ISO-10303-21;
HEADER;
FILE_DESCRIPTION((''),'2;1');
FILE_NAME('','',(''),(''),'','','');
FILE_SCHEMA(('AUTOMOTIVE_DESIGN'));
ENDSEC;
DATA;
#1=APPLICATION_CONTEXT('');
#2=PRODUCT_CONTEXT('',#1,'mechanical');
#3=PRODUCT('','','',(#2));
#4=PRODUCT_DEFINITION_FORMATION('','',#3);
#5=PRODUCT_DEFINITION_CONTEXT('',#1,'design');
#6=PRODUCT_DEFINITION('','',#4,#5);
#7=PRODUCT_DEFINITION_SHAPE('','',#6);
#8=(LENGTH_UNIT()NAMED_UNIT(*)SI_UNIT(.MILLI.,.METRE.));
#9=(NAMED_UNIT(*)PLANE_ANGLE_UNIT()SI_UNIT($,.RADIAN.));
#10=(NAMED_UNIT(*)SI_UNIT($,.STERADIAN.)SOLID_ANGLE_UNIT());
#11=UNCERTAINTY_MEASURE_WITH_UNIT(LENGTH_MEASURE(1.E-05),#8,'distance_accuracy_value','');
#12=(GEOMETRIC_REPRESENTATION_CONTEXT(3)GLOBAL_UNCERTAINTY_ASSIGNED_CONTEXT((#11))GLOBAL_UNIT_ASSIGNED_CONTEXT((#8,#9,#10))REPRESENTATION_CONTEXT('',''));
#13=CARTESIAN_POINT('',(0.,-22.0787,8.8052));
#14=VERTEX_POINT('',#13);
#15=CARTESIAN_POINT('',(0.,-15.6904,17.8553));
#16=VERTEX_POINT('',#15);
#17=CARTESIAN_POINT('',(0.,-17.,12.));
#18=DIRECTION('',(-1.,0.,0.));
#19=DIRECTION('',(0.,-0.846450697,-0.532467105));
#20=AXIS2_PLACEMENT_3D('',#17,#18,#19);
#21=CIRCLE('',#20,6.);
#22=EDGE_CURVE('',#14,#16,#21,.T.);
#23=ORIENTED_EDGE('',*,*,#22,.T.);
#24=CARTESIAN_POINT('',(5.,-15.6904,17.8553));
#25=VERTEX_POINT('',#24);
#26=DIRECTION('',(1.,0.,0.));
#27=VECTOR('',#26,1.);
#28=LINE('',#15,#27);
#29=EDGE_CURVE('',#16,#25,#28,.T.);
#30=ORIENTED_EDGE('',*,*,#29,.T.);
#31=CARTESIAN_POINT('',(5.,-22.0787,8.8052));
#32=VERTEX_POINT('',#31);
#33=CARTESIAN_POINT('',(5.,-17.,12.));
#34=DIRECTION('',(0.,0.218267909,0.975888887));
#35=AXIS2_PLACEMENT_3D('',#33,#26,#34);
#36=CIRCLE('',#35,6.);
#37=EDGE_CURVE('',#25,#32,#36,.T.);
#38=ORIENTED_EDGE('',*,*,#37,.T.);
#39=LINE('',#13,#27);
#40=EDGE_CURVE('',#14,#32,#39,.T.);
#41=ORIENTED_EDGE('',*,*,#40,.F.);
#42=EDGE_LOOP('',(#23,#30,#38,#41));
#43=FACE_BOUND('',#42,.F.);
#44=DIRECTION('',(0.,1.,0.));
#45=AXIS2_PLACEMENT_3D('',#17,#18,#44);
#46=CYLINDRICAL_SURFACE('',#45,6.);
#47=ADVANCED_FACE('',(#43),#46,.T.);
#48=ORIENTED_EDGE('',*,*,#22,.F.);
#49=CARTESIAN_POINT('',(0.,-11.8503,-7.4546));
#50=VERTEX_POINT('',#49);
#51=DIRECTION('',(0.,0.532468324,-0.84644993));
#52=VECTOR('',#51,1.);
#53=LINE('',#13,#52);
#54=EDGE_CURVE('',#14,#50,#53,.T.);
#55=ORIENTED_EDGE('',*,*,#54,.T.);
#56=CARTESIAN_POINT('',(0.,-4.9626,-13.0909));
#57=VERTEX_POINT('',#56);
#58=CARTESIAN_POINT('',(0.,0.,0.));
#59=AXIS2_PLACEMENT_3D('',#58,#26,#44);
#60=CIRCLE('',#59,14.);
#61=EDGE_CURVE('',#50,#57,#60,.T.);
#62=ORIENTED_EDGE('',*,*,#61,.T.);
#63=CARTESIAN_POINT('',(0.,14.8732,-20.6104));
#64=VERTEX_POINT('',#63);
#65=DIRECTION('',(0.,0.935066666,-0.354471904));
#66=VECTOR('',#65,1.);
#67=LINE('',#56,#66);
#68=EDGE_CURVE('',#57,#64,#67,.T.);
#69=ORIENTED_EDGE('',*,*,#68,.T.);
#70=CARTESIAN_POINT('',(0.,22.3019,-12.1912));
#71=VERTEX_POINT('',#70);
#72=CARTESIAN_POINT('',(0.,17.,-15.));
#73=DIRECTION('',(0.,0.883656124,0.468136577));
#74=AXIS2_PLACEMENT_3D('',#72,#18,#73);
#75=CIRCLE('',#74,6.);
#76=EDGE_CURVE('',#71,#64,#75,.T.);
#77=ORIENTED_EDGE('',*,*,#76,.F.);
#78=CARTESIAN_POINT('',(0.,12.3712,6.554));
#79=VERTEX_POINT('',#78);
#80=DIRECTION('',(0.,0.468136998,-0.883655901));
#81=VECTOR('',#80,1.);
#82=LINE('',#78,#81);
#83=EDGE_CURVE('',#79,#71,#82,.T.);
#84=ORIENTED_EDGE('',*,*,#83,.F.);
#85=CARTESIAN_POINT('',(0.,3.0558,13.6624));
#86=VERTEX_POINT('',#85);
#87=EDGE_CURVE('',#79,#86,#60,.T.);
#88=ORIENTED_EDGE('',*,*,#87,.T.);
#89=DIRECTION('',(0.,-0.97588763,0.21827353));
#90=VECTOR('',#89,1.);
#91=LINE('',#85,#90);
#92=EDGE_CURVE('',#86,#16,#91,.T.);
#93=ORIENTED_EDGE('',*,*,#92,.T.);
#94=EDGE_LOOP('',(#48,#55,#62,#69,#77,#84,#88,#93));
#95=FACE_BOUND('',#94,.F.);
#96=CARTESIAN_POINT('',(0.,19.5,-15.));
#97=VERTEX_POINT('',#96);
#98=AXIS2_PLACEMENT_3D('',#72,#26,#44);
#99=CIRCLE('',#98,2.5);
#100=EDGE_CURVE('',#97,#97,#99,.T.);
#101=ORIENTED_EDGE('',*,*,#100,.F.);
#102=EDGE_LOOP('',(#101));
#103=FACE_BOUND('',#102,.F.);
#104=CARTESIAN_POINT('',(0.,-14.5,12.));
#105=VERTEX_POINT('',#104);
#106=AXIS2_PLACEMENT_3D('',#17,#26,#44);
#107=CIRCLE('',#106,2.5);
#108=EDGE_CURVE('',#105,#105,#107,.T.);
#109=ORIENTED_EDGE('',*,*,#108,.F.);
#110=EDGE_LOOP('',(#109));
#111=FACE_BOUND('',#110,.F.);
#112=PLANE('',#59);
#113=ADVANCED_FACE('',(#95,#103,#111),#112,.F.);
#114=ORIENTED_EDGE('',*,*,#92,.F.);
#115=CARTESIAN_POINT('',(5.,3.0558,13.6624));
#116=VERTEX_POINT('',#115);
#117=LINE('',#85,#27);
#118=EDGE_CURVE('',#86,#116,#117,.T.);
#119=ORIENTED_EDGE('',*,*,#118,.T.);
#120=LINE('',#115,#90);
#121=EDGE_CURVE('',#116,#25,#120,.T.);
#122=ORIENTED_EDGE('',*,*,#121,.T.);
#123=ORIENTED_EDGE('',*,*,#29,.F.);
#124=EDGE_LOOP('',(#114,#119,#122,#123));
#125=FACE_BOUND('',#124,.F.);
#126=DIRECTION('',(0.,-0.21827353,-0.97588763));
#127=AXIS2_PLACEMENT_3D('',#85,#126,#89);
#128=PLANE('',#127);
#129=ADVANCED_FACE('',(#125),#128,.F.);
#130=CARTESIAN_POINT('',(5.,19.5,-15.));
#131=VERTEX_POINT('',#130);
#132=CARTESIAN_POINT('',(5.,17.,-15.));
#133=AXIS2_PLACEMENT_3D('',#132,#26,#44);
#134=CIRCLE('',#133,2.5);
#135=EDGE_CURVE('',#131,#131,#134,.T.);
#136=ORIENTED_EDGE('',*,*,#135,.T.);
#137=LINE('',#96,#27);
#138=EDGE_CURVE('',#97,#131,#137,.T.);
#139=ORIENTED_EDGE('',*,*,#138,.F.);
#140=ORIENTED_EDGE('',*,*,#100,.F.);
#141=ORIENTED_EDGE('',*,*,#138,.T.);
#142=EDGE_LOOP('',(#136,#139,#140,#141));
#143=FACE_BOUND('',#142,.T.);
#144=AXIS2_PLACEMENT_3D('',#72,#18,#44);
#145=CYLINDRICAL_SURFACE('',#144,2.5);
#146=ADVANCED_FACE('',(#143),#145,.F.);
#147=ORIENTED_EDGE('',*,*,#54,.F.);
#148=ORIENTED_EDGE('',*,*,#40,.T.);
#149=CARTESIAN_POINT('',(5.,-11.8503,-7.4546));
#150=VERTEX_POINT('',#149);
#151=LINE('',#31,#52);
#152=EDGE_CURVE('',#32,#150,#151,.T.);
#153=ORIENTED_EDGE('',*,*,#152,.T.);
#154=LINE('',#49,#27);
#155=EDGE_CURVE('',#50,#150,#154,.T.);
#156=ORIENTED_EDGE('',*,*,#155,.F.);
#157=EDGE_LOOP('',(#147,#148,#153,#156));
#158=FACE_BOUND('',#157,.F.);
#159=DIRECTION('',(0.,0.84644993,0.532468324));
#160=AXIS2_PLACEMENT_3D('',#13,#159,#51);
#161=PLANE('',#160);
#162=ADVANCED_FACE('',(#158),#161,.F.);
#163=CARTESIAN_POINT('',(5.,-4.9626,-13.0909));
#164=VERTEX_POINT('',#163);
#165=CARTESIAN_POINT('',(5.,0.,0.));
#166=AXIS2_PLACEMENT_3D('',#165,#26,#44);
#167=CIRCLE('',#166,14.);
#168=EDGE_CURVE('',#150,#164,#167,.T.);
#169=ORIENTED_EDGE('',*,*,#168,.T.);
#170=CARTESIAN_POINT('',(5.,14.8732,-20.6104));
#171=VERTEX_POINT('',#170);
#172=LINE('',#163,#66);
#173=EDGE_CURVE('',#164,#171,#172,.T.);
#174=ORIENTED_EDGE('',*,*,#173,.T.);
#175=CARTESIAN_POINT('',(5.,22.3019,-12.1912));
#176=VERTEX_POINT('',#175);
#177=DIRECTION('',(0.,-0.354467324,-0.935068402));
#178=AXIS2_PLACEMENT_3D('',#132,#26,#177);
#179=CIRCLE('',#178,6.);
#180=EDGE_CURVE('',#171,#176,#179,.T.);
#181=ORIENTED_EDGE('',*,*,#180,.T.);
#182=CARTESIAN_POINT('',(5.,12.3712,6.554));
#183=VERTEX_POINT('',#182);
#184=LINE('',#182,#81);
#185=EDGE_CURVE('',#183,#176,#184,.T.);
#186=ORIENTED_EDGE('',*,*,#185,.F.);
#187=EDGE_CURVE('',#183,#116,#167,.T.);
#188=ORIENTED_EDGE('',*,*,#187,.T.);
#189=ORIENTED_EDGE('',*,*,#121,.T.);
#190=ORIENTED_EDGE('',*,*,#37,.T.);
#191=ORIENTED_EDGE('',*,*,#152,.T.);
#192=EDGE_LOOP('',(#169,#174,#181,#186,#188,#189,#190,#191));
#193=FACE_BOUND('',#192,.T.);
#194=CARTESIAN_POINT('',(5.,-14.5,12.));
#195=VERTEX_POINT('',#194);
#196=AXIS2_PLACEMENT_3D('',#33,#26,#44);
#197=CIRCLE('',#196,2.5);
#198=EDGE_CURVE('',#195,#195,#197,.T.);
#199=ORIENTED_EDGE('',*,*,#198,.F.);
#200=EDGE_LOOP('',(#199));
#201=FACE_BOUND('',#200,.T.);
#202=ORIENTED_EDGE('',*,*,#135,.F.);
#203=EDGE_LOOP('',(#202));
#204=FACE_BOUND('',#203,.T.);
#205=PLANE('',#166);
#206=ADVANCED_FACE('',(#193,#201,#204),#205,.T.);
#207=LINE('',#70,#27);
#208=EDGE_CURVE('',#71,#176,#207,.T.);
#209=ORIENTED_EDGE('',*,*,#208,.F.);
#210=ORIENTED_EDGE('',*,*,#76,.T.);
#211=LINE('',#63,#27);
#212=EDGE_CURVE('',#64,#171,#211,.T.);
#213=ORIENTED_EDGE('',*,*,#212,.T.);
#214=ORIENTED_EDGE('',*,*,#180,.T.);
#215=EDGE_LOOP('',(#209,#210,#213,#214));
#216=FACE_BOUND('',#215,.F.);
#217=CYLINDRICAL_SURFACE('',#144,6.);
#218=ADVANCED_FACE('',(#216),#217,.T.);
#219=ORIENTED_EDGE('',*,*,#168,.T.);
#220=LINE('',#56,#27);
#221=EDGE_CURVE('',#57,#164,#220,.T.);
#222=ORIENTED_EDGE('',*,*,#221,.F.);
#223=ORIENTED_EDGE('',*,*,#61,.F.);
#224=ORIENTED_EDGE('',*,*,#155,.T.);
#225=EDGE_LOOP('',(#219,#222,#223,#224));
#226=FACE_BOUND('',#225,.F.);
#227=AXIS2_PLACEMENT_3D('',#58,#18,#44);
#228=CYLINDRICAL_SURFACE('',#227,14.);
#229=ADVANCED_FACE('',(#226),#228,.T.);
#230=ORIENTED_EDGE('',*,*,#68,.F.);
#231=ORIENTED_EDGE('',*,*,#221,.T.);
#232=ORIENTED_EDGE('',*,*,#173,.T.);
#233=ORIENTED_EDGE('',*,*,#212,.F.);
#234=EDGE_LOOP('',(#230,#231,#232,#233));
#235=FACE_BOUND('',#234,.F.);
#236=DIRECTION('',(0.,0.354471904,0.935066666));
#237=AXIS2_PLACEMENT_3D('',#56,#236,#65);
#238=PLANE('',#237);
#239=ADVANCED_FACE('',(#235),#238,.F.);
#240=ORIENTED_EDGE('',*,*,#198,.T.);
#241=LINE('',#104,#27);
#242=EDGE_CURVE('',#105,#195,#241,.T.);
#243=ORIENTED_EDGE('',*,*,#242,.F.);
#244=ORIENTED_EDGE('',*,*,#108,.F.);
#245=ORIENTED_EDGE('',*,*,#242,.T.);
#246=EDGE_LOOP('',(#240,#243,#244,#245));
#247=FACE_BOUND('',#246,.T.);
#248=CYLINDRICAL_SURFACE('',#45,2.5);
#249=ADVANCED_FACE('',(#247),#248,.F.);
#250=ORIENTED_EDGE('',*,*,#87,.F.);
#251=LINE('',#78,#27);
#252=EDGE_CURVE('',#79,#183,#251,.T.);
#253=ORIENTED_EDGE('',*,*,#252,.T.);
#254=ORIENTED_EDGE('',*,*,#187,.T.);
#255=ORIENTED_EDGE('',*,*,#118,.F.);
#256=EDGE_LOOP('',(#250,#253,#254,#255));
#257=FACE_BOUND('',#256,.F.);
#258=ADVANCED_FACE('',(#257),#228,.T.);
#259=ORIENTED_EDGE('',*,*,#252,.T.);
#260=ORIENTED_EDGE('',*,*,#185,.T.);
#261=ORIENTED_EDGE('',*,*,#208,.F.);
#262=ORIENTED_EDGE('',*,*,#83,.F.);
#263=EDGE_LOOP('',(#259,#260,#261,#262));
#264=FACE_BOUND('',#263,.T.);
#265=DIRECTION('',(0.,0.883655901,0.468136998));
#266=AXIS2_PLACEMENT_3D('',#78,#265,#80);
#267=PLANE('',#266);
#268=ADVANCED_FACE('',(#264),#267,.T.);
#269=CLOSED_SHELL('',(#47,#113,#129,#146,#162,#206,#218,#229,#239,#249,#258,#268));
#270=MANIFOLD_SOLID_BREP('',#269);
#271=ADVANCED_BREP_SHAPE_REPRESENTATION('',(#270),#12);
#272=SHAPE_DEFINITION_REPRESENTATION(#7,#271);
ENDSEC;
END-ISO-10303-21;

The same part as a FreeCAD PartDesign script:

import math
import FreeCAD as App
import Part
import Sketcher

V = App.Vector
Q = App.Units.Quantity

doc = App.newDocument("Part")
params = doc.addObject("Spreadsheet::Sheet", "Params")
for row, (alias, value) in enumerate([
    ("sketch1_diameter", "5 mm"),
    ("sketch1_radius", "14 mm"),
    ("sketch1_radius2", "6 mm"),
    ("pad1_length", "5 mm"),
], start=1):
    params.set(f"A{row}", alias)
    params.set(f"B{row}", "=" + value)
    params.setAlias(f"B{row}", alias)

body = doc.addObject("PartDesign::Body", "Body")

sketch1 = body.newObject("Sketcher::SketchObject", "Sketch")
sketch1.AttachmentSupport = (doc.getObject("YZ_Plane"), [""])
sketch1.MapMode = "FlatFace"
sketch1.addGeometry(Part.ArcOfCircle(Part.Circle(V(0, 0, 0), V(0, 0, 1), 14), math.radians(-148), math.radians(-111)), False)
sketch1.addGeometry(Part.LineSegment(V(-5, -13.1, 0), V(14.9, -20.6, 0)), False)
sketch1.addGeometry(Part.ArcOfCircle(Part.Circle(V(17, -15, 0), V(0, 0, 1), 6), math.radians(-111), math.radians(28)), False)
sketch1.addGeometry(Part.LineSegment(V(22.3, -12.2, 0), V(12.4, 6.6, 0)), False)
sketch1.addGeometry(Part.ArcOfCircle(Part.Circle(V(0, 0, 0), V(0, 0, 1), 14), math.radians(28), math.radians(77)), False)
sketch1.addGeometry(Part.LineSegment(V(3.1, 13.7, 0), V(-15.7, 17.9, 0)), False)
sketch1.addGeometry(Part.ArcOfCircle(Part.Circle(V(-17, 12, 0), V(0, 0, 1), 6), math.radians(77), math.radians(212)), False)
sketch1.addGeometry(Part.LineSegment(V(-22.1, 8.8, 0), V(-11.9, -7.5, 0)), False)
sketch1.addGeometry(Part.Circle(V(17, -15, 0), V(0, 0, 1), 2.5), False)
sketch1.addGeometry(Part.Circle(V(-17, 12, 0), V(0, 0, 1), 2.5), False)
sketch1.addConstraint(Sketcher.Constraint("Tangent", 0, 2, 1, 1))
sketch1.addConstraint(Sketcher.Constraint("Tangent", 1, 2, 2, 1))
sketch1.addConstraint(Sketcher.Constraint("Tangent", 2, 2, 3, 1))
sketch1.addConstraint(Sketcher.Constraint("Tangent", 3, 2, 4, 1))
sketch1.addConstraint(Sketcher.Constraint("Tangent", 4, 2, 5, 1))
sketch1.addConstraint(Sketcher.Constraint("Tangent", 5, 2, 6, 1))
sketch1.addConstraint(Sketcher.Constraint("Tangent", 6, 2, 7, 1))
sketch1.addConstraint(Sketcher.Constraint("Tangent", 7, 2, 0, 1))
sketch1.addConstraint(Sketcher.Constraint("Coincident", 0, 3, -1, 1))
sketch1.addConstraint(Sketcher.Constraint("Coincident", 4, 3, -1, 1))
sketch1.addConstraint(Sketcher.Constraint("Coincident", 8, 3, 2, 3))
sketch1.addConstraint(Sketcher.Constraint("Coincident", 9, 3, 6, 3))
sketch1.addConstraint(Sketcher.Constraint("Equal", 0, 4))
sketch1.addConstraint(Sketcher.Constraint("Equal", 2, 6))
sketch1.addConstraint(Sketcher.Constraint("Equal", 8, 9))
sketch1.addConstraint(Sketcher.Constraint("Diameter", 8, Q("5 mm")))
sketch1.addConstraint(Sketcher.Constraint("Radius", 0, Q("14 mm")))
sketch1.addConstraint(Sketcher.Constraint("Radius", 2, Q("6 mm")))
sketch1.addConstraint(Sketcher.Constraint("DistanceY", 2, 3, -1, 1, Q("15 mm")))
sketch1.addConstraint(Sketcher.Constraint("DistanceY", -1, 1, 6, 3, Q("12 mm")))
sketch1.addConstraint(Sketcher.Constraint("DistanceX", -1, 1, 2, 3, Q("17 mm")))
sketch1.addConstraint(Sketcher.Constraint("DistanceX", 6, 3, -1, 1, Q("17 mm")))
sketch1.setExpression("Constraints[15]", "Params.sketch1_diameter")
sketch1.setExpression("Constraints[16]", "Params.sketch1_radius")
sketch1.setExpression("Constraints[17]", "Params.sketch1_radius2")
pad1 = body.newObject("PartDesign::Pad", "Pad")
pad1.Profile = sketch1
pad1.setExpression("Length", "Params.pad1_length")

doc.recompute()
